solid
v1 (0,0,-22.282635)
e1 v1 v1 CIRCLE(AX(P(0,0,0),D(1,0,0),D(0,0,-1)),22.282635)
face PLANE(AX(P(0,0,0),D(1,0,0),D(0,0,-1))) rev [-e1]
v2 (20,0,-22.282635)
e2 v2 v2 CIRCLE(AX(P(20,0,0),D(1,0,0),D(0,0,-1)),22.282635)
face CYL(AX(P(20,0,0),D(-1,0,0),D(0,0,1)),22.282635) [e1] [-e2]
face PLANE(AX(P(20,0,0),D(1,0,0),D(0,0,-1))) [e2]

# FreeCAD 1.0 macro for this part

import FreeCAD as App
import Part
import Sketcher
Q = App.Units.Quantity

doc = App.newDocument("Part")
body = doc.addObject("PartDesign::Body", "Body")

# Sketch on YZ plane
sketch1 = body.newObject("Sketcher::SketchObject", "Sketch")
sketch1.AttachmentSupport = (doc.getObject("YZ_Plane"), [""])
sketch1.MapMode = "FlatFace"
sketch1.addGeometry(Part.Circle(App.Vector(0, 0, 0), App.Vector(0, 0, 1), 22), False)
sketch1.addConstraint(Sketcher.Constraint("Coincident", 0, 3, -1, 1))
sketch1.addConstraint(Sketcher.Constraint("Diameter", 0, Q("44.565269 mm")))
pad1 = body.newObject("PartDesign::Pad", "Pad")
pad1.Profile = sketch1
pad1.Length = 20

doc.recompute()
